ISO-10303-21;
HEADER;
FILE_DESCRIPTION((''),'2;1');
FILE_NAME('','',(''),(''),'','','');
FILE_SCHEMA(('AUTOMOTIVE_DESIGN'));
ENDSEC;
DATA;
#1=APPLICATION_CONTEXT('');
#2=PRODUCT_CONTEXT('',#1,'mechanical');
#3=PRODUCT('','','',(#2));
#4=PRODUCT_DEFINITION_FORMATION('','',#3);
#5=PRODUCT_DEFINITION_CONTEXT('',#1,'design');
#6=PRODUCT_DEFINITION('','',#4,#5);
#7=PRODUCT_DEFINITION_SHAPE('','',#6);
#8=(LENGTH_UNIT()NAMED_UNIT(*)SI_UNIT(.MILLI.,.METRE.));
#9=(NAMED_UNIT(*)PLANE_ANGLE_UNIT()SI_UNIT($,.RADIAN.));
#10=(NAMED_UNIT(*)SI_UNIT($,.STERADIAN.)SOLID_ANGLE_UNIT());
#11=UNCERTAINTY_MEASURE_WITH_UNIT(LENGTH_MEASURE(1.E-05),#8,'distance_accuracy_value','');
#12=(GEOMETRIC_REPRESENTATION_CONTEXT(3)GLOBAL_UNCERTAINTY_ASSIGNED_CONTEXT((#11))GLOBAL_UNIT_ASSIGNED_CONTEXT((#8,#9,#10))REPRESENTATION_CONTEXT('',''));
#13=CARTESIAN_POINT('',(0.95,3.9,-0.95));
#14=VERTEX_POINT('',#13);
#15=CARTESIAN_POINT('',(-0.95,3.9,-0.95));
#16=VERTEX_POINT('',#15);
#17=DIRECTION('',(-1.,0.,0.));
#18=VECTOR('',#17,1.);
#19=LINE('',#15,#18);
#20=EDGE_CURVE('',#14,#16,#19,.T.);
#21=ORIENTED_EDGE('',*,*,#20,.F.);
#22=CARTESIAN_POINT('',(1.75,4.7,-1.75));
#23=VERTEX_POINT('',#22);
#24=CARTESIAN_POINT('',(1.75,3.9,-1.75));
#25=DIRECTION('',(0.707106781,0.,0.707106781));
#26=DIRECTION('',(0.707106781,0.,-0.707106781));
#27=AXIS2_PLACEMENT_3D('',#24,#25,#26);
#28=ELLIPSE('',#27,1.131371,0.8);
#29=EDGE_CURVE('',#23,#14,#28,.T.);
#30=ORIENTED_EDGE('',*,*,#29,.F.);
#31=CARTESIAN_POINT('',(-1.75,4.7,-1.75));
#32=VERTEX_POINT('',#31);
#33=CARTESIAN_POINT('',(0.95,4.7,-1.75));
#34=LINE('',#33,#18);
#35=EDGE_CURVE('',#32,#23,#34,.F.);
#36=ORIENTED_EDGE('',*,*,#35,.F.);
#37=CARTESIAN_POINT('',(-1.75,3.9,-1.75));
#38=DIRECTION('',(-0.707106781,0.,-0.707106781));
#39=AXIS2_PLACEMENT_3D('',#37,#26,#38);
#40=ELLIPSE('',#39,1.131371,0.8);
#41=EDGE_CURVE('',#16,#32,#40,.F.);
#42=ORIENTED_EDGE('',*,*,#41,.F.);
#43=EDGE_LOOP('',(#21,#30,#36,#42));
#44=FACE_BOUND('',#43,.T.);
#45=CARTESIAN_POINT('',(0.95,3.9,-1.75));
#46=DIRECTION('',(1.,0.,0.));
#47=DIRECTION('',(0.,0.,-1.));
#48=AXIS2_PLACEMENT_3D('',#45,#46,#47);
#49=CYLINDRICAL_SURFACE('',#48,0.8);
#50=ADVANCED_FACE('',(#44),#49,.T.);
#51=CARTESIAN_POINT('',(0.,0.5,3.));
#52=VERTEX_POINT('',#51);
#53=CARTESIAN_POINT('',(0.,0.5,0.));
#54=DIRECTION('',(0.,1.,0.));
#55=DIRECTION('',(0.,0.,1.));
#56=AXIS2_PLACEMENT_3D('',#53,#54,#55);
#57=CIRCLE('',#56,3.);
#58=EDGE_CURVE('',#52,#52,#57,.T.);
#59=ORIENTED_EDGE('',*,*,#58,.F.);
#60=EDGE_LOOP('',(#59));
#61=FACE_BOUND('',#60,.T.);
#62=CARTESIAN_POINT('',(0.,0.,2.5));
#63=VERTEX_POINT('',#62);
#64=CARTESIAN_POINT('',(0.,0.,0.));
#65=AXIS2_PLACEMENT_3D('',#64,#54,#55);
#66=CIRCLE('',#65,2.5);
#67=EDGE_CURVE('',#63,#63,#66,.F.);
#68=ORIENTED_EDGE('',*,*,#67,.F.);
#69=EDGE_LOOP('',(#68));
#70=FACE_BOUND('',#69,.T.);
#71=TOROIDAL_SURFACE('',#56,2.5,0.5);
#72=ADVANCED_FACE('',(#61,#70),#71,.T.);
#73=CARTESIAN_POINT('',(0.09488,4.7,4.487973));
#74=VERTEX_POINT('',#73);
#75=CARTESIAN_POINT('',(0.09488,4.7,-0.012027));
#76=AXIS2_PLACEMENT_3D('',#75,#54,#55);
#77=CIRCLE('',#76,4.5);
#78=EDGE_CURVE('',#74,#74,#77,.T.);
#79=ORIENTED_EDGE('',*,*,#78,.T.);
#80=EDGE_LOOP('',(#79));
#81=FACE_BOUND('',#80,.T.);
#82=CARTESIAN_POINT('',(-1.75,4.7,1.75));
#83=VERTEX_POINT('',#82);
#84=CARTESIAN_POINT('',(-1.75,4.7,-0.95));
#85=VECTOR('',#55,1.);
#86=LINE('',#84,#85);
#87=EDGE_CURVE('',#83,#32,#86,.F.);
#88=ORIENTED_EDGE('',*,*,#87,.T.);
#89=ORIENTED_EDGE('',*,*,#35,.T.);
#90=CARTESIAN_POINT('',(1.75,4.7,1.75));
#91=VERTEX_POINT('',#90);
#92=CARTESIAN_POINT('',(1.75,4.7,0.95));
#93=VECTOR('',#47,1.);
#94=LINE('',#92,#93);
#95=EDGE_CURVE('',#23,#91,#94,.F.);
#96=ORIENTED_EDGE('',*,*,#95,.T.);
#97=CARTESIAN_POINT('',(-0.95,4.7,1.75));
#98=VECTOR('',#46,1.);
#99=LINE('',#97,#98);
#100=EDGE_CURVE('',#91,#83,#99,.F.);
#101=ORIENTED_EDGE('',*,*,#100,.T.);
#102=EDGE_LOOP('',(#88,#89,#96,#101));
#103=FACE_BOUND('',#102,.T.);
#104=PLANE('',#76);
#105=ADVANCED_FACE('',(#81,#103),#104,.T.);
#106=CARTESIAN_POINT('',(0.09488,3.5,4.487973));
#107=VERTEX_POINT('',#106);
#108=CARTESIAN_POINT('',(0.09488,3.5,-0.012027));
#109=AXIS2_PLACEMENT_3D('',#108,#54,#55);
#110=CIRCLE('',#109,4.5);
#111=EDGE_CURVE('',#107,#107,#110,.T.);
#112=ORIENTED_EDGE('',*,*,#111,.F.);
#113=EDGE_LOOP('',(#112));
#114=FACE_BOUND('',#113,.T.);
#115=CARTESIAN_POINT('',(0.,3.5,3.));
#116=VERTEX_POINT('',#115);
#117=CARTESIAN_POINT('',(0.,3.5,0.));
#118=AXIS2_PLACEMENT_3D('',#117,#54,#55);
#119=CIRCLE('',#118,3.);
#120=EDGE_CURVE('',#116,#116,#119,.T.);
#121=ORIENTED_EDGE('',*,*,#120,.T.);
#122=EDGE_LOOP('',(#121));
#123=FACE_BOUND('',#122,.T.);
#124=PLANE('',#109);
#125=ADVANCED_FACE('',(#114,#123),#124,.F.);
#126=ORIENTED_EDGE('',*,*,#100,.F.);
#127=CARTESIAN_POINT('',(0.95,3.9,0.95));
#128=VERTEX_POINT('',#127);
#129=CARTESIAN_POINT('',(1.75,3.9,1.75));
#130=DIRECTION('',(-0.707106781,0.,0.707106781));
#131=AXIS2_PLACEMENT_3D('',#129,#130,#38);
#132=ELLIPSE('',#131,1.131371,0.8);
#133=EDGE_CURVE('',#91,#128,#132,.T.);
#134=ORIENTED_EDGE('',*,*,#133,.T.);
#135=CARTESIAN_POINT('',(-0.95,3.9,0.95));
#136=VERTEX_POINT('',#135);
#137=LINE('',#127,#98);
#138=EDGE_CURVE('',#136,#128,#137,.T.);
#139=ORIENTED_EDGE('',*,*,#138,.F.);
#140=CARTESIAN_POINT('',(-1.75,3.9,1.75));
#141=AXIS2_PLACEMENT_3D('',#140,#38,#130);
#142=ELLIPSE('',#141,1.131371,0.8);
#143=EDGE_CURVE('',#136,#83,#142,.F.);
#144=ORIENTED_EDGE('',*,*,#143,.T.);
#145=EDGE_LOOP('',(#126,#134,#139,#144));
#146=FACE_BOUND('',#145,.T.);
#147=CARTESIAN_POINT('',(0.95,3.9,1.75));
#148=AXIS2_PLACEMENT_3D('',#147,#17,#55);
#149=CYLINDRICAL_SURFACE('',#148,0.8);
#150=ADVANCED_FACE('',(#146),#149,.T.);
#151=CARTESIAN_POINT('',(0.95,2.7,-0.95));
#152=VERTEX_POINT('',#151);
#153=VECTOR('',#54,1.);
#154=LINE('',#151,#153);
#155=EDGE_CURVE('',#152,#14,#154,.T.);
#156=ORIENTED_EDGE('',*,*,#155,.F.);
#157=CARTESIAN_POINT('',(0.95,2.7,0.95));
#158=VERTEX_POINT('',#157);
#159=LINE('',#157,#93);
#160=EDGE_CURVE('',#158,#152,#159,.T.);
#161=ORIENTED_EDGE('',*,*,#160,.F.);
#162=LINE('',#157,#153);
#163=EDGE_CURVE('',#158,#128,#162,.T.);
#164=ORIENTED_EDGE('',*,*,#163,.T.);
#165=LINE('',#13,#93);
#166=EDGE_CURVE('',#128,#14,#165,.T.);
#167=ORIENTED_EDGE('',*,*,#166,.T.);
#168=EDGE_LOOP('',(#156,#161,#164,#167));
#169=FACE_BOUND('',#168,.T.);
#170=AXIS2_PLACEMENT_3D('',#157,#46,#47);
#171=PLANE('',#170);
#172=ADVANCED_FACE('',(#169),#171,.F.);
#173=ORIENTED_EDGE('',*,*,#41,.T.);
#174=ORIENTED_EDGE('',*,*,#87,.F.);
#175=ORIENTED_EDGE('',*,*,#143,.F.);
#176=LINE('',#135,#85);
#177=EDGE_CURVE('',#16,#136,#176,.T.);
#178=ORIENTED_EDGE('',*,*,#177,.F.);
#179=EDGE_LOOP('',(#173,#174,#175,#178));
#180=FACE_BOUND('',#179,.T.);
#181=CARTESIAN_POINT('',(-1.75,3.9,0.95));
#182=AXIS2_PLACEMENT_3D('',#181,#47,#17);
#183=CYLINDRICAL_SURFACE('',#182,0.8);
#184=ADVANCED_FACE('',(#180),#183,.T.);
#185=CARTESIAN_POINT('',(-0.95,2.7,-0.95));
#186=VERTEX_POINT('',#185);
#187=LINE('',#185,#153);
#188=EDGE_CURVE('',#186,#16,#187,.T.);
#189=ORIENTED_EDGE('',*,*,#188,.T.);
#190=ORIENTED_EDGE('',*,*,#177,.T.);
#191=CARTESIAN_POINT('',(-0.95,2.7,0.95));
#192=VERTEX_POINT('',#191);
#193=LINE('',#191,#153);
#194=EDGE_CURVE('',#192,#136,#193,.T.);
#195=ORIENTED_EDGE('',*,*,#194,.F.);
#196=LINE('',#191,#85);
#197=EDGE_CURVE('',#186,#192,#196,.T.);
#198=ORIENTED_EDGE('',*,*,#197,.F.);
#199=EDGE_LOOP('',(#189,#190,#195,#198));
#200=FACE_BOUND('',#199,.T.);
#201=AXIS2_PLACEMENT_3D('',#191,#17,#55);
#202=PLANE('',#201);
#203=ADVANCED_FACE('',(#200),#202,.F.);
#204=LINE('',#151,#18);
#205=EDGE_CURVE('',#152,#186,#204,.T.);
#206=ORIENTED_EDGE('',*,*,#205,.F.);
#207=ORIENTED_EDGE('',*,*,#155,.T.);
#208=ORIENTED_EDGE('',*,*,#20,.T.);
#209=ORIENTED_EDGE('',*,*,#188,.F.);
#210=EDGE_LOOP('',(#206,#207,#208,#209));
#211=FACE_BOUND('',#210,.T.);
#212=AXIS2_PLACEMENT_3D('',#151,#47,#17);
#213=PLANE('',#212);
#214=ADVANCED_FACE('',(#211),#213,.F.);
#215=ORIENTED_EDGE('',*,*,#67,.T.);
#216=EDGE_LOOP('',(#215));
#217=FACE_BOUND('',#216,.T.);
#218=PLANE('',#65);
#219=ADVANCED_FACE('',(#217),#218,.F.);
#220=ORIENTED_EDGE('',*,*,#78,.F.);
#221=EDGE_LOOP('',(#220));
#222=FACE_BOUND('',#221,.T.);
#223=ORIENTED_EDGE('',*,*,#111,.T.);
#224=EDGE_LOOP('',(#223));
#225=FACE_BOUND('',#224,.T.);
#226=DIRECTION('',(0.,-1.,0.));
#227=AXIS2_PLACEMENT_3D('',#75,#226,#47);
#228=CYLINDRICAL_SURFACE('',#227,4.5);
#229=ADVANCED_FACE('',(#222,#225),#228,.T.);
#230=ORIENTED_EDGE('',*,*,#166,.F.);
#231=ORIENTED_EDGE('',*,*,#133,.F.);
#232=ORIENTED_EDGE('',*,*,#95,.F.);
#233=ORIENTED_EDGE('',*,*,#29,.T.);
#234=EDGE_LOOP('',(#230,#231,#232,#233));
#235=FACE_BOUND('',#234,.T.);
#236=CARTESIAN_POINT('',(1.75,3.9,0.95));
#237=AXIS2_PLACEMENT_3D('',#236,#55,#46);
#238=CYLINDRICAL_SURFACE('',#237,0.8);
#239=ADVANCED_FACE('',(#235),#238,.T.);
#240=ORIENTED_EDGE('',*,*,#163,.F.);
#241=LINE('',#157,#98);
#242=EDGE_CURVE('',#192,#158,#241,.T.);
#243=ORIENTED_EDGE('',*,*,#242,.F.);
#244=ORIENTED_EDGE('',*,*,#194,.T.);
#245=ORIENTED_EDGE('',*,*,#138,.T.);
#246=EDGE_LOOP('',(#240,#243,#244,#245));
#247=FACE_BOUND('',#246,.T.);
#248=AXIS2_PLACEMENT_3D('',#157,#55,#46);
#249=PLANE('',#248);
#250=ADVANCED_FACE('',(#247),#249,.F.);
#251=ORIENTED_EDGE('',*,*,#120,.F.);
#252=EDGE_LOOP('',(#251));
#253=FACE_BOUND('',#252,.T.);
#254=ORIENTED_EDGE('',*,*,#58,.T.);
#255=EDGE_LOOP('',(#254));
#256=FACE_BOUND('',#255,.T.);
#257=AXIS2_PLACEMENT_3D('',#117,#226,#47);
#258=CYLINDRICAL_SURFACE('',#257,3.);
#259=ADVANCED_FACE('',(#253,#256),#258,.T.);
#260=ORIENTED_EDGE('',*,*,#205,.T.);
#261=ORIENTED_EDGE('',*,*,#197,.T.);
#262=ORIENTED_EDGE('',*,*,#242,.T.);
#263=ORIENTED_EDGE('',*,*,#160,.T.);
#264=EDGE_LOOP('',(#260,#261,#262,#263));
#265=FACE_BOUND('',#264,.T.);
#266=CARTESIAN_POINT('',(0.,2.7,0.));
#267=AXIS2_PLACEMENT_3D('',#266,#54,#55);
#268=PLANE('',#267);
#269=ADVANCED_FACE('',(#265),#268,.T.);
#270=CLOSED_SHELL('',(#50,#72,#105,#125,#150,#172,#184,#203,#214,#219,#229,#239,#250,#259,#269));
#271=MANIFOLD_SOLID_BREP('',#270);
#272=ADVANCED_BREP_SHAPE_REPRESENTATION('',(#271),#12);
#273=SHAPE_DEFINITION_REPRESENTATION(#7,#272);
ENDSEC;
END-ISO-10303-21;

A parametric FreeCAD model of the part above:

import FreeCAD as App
import Part
import Sketcher
Q = App.Units.Quantity


def edges_at(feature, points):
    """Names of the edges that pass closest to the given points."""
    edges = feature.Shape.Edges
    near = lambda p: min(range(len(edges)), key=lambda i: edges[i].distToShape(Part.Vertex(*p))[0])
    return sorted({f"Edge{near(p) + 1}" for p in points})

doc = App.newDocument("Part")
params = doc.addObject("Spreadsheet::Sheet", "Params")
for row, (alias, value) in enumerate([
    ("sketch1_diameter", "6 mm"),
    ("pad1_length", "3.5 mm"),
    ("sketch2_diameter", "9 mm"),
    ("pad2_length", "1.2 mm"),
    ("sketch3_width", "1.9 mm"),
    ("pocket1_length", "2 mm"),
    ("fillet_radius", "0.5 mm"),
    ("fillet2_radius", "0.8 mm"),
], start=1):
    params.set(f"A{row}", alias)
    params.set(f"B{row}", "=" + value)
    params.setAlias(f"B{row}", alias)

body = doc.addObject("PartDesign::Body", "Body")

sketch1 = doc.addObject("Sketcher::SketchObject", "Sketch")
body.addObject(sketch1)
sketch1.AttachmentSupport = (doc.XZ_Plane, [""])
sketch1.MapMode = "FlatFace"
sketch1.addGeometry(Part.Circle(App.Vector(0, 0, 0), App.Vector(0, 0, 1), 3), False)
sketch1.addConstraint(Sketcher.Constraint("Coincident", 0, 3, -1, 1))
sketch1.addConstraint(Sketcher.Constraint("Diameter", 0, Q("6 mm")))
sketch1.setExpression("Constraints[1]", "Params.sketch1_diameter")
pad1 = doc.addObject("PartDesign::Pad", "Pad")
body.addObject(pad1)
pad1.Profile = sketch1
pad1.setExpression("Length", "Params.pad1_length")
pad1.Reversed = True

sketch2 = doc.addObject("Sketcher::SketchObject", "Sketch001")
body.addObject(sketch2)
sketch2.AttachmentSupport = (doc.XZ_Plane, [""])
sketch2.MapMode = "FlatFace"
sketch2.AttachmentOffset = App.Placement(App.Vector(0, 0, -3.5), App.Rotation())
sketch2.addGeometry(Part.Circle(App.Vector(0.09488, -0.012027, 0), App.Vector(0, 0, 1), 4.5), False)
sketch2.addConstraint(Sketcher.Constraint("Diameter", 0, Q("9 mm")))
sketch2.addConstraint(Sketcher.Constraint("DistanceX", -1, 1, 0, 3, Q("0.09488 mm")))
sketch2.addConstraint(Sketcher.Constraint("DistanceY", 0, 3, -1, 1, Q("0.012027 mm")))
sketch2.setExpression("Constraints[0]", "Params.sketch2_diameter")
pad2 = doc.addObject("PartDesign::Pad", "Pad001")
body.addObject(pad2)
pad2.Profile = sketch2
pad2.setExpression("Length", "Params.pad2_length")
pad2.Reversed = True

sketch3 = doc.addObject("Sketcher::SketchObject", "Sketch002")
body.addObject(sketch3)
sketch3.AttachmentSupport = (doc.XZ_Plane, [""])
sketch3.MapMode = "FlatFace"
sketch3.AttachmentOffset = App.Placement(App.Vector(0, 0, -4.7), App.Rotation())
sketch3.addGeometry(Part.LineSegment(App.Vector(-0.95, -0.95, 0), App.Vector(-0.95, 0.95, 0)), False)
sketch3.addGeometry(Part.LineSegment(App.Vector(-0.95, 0.95, 0), App.Vector(0.95, 0.95, 0)), False)
sketch3.addGeometry(Part.LineSegment(App.Vector(0.95, 0.95, 0), App.Vector(0.95, -0.95, 0)), False)
sketch3.addGeometry(Part.LineSegment(App.Vector(0.95, -0.95, 0), App.Vector(-0.95, -0.95, 0)), False)
sketch3.addConstraint(Sketcher.Constraint("Coincident", 0, 2, 1, 1))
sketch3.addConstraint(Sketcher.Constraint("Coincident", 1, 2, 2, 1))
sketch3.addConstraint(Sketcher.Constraint("Coincident", 2, 2, 3, 1))
sketch3.addConstraint(Sketcher.Constraint("Coincident", 3, 2, 0, 1))
sketch3.addConstraint(Sketcher.Constraint("Vertical", 0))
sketch3.addConstraint(Sketcher.Constraint("Horizontal", 1))
sketch3.addConstraint(Sketcher.Constraint("Vertical", 2))
sketch3.addConstraint(Sketcher.Constraint("Horizontal", 3))
sketch3.addConstraint(Sketcher.Constraint("Symmetric", 0, 2, 2, 2, -1, 1))
sketch3.addConstraint(Sketcher.Constraint("Equal", 3, 0))
sketch3.addConstraint(Sketcher.Constraint("DistanceX", 1, 1, 1, 2, Q("1.9 mm")))
sketch3.setExpression("Constraints[10]", "Params.sketch3_width")
pocket1 = doc.addObject("PartDesign::Pocket", "Pocket")
body.addObject(pocket1)
pocket1.Profile = sketch3
pocket1.setExpression("Length", "Params.pocket1_length")
pocket1.Reversed = True
doc.recompute()

fillet = doc.addObject("PartDesign::Fillet", "Fillet")
body.addObject(fillet)
fillet.Base = (pocket1, edges_at(pocket1, [(0, 0, -3)]))
fillet.setExpression("Radius", "Params.fillet_radius")
doc.recompute()

fillet2 = doc.addObject("PartDesign::Fillet", "Fillet001")
body.addObject(fillet2)
fillet2.Base = (fillet, edges_at(fillet, [
    (-0.95, 4.7, 0),
    (0, 4.7, 0.95),
    (0.95, 4.7, 0),
    (0, 4.7, -0.95),
]))
fillet2.setExpression("Radius", "Params.fillet2_radius")

doc.recompute()
